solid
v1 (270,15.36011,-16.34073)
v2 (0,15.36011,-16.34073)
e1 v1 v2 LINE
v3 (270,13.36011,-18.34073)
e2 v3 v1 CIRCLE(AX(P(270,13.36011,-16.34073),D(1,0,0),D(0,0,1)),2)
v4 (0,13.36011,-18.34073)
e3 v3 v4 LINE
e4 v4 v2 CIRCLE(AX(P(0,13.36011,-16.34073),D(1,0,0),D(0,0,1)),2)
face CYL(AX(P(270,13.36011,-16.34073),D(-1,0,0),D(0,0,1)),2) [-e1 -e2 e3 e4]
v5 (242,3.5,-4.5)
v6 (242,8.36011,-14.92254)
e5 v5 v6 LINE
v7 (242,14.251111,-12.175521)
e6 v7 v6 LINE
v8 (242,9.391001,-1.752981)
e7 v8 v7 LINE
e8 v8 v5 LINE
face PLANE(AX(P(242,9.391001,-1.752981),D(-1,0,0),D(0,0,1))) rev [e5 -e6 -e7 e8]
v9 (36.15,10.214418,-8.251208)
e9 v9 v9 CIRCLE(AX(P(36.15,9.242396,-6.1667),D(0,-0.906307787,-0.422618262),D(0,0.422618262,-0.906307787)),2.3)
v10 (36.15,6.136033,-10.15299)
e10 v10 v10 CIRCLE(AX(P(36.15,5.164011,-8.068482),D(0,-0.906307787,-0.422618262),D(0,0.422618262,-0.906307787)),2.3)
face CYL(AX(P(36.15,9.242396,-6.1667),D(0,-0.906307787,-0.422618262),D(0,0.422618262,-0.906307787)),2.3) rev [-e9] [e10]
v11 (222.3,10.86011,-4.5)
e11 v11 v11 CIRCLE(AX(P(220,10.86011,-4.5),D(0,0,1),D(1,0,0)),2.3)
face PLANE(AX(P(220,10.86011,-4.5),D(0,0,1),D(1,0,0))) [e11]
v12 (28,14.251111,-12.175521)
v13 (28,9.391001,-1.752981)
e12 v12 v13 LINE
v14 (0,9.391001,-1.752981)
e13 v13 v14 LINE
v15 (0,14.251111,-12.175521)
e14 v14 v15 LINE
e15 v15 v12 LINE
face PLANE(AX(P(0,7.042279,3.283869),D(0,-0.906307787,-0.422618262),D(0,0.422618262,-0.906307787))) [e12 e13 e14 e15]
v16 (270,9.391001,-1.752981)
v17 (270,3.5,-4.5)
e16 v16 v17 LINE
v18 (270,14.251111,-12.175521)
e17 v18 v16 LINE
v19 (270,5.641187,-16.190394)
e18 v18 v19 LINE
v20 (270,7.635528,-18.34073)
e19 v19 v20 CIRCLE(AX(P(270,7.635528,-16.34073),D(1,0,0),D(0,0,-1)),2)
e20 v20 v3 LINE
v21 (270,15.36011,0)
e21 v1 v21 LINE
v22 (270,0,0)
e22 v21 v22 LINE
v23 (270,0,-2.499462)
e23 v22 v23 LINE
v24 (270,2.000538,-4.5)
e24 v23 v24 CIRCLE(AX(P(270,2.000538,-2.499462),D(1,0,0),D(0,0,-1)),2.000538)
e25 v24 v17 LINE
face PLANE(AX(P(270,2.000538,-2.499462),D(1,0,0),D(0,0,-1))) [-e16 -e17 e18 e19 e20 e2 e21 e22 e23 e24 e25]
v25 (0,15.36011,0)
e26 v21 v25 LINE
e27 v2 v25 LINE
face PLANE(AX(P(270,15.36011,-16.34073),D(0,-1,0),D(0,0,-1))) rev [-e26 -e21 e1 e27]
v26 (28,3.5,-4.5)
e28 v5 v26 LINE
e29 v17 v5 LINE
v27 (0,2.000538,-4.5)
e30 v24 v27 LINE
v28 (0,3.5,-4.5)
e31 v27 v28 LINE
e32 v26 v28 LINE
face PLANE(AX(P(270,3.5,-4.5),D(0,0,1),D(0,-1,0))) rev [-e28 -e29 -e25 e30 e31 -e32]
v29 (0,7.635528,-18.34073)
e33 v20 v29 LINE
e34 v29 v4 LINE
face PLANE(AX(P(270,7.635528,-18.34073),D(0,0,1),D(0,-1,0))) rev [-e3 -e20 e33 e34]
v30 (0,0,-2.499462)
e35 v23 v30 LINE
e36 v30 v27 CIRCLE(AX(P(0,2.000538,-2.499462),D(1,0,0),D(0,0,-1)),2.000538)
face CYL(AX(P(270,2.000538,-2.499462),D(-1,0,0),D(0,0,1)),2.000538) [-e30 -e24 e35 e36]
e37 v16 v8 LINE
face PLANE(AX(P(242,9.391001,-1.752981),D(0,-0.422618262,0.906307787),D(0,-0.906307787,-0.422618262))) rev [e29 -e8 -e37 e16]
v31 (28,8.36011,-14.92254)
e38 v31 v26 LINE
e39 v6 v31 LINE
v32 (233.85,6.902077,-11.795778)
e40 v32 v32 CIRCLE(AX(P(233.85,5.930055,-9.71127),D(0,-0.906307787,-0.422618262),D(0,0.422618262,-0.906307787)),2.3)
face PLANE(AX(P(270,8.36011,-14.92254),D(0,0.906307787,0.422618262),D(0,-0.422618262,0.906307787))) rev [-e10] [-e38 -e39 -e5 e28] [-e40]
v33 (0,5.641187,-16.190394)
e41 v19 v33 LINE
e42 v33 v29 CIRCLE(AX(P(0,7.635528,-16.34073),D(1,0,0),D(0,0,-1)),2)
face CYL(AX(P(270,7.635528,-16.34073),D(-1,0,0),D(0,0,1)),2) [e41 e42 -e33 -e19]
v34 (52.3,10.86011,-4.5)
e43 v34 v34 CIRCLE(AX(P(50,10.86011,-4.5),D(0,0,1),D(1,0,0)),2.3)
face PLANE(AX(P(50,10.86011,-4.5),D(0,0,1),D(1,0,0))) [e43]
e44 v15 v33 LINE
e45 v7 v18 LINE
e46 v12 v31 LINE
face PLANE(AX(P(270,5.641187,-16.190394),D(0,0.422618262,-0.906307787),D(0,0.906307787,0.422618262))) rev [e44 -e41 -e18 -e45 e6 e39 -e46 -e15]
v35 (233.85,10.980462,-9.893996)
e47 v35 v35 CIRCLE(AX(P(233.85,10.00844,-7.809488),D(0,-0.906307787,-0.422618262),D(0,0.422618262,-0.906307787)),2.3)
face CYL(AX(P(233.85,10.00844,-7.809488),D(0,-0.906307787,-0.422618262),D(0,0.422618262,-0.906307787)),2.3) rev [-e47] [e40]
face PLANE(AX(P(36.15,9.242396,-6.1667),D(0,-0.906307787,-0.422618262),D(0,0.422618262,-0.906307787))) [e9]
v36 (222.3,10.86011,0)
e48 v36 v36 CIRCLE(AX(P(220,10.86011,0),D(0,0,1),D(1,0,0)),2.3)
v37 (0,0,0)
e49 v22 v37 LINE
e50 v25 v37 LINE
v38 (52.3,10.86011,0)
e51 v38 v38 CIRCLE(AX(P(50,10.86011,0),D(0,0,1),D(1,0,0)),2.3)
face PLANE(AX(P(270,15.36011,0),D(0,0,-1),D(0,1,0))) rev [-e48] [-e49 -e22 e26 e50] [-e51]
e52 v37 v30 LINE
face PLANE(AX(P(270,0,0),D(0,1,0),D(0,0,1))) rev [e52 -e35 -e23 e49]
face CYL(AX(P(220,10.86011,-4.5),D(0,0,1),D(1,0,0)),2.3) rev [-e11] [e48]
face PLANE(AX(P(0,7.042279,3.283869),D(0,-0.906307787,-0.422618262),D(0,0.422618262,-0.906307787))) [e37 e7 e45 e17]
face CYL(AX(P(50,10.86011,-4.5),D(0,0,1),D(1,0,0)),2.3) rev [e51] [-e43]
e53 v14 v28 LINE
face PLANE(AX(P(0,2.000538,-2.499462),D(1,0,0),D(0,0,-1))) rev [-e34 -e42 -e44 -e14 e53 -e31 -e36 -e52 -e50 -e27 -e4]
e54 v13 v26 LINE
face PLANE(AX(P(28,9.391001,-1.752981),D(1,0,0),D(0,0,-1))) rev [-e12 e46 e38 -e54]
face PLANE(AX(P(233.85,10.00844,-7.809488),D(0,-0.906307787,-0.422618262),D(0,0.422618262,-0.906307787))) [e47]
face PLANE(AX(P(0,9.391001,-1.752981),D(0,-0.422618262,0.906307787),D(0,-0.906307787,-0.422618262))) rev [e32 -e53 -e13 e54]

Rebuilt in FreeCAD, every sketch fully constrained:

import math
import FreeCAD as App
import Part
import Sketcher
Q = App.Units.Quantity


def add_polygon(sketch, points):
    """Adds a closed chain of lines whose ends are joined by coincident constraints."""
    first, n = sketch.GeometryCount, len(points)
    for a, b in zip(points, points[1:] + points[:1]):
        sketch.addGeometry(Part.LineSegment(App.Vector(*a, 0), App.Vector(*b, 0)), False)
    for i in range(n):
        sketch.addConstraint(Sketcher.Constraint("Coincident", first + i, 2, first + (i + 1) % n, 1))

doc = App.newDocument("Part")
body = doc.addObject("PartDesign::Body", "Body")

sketch1 = doc.addObject("Sketcher::SketchObject", "Sketch")
body.addObject(sketch1)
sketch1.AttachmentSupport = (doc.YZ_Plane, [""])
sketch1.MapMode = "FlatFace"
sketch1.addGeometry(Part.LineSegment(App.Vector(0, 0, 0), App.Vector(0, -2.499462, 0)), False)
sketch1.addGeometry(Part.ArcOfCircle(Part.Circle(App.Vector(2.000538, -2.499462, 0), App.Vector(0, 0, 1), 2.000538), math.radians(180), math.radians(270)), False)
sketch1.addGeometry(Part.LineSegment(App.Vector(2.000538, -4.5, 0), App.Vector(3.5, -4.5, 0)), False)
sketch1.addGeometry(Part.LineSegment(App.Vector(3.5, -4.5, 0), App.Vector(8.36011, -14.92254, 0)), False)
sketch1.addGeometry(Part.LineSegment(App.Vector(8.36011, -14.92254, 0), App.Vector(5.641187, -16.190394, 0)), False)
sketch1.addGeometry(Part.ArcOfCircle(Part.Circle(App.Vector(7.635528, -16.34073, 0), App.Vector(0, 0, 1), 2), math.radians(175.689148), math.radians(270)), False)
sketch1.addGeometry(Part.LineSegment(App.Vector(7.635528, -18.34073, 0), App.Vector(13.36011, -18.34073, 0)), False)
sketch1.addGeometry(Part.ArcOfCircle(Part.Circle(App.Vector(13.36011, -16.34073, 0), App.Vector(0, 0, 1), 2), math.radians(-90), math.radians(0)), False)
sketch1.addGeometry(Part.LineSegment(App.Vector(15.36011, -16.34073, 0), App.Vector(15.36011, 0, 0)), False)
sketch1.addGeometry(Part.LineSegment(App.Vector(15.36011, 0, 0), App.Vector(0, 0, 0)), False)
sketch1.addConstraint(Sketcher.Constraint("Tangent", 0, 2, 1, 1))
sketch1.addConstraint(Sketcher.Constraint("Tangent", 1, 2, 2, 1))
sketch1.addConstraint(Sketcher.Constraint("Coincident", 2, 2, 3, 1))
sketch1.addConstraint(Sketcher.Constraint("Coincident", 3, 2, 4, 1))
sketch1.addConstraint(Sketcher.Constraint("Coincident", 4, 2, 5, 1))
sketch1.addConstraint(Sketcher.Constraint("Tangent", 5, 2, 6, 1))
sketch1.addConstraint(Sketcher.Constraint("Tangent", 6, 2, 7, 1))
sketch1.addConstraint(Sketcher.Constraint("Tangent", 7, 2, 8, 1))
sketch1.addConstraint(Sketcher.Constraint("Coincident", 8, 2, 9, 1))
sketch1.addConstraint(Sketcher.Constraint("Coincident", 9, 2, 0, 1))
sketch1.addConstraint(Sketcher.Constraint("Vertical", 0))
sketch1.addConstraint(Sketcher.Constraint("Horizontal", 2))
sketch1.addConstraint(Sketcher.Constraint("Horizontal", 6))
sketch1.addConstraint(Sketcher.Constraint("Vertical", 8))
sketch1.addConstraint(Sketcher.Constraint("Horizontal", 9))
sketch1.addConstraint(Sketcher.Constraint("Coincident", 9, 2, -1, 1))
sketch1.addConstraint(Sketcher.Constraint("Equal", 5, 7))
sketch1.addConstraint(Sketcher.Constraint("Perpendicular", 3, 4))
sketch1.addConstraint(Sketcher.Constraint("Radius", 5, 2.0))
sketch1.addConstraint(Sketcher.Constraint("Angle", 3, Q("-65 deg")))
sketch1.addConstraint(Sketcher.Constraint("Distance", 4, 3.0))
sketch1.addConstraint(Sketcher.Constraint("DistanceX", 3, 2, 7, 3, 5.0))
sketch1.addConstraint(Sketcher.Constraint("Distance", 3, 11.5))
sketch1.addConstraint(Sketcher.Constraint("DistanceY", 1, 2, -1, 1, 4.5))
sketch1.addConstraint(Sketcher.Constraint("DistanceX", -1, 1, 2, 2, 3.5))
sketch1.addConstraint(Sketcher.Constraint("Radius", 1, 2.000538))
sketch1.addConstraint(Sketcher.Constraint("DistanceX", 6, 1, 6, 2, 5.724582))
pad1 = doc.addObject("PartDesign::Pad", "Pad")
body.addObject(pad1)
pad1.Profile = sketch1
pad1.Length = 270

sketch2 = doc.addObject("Sketcher::SketchObject", "Sketch001")
body.addObject(sketch2)
sketch2.Placement = App.Placement(App.Vector(0, 1.151278, 0.53685), App.Rotation(App.Vector(1, 0, 0), App.Vector(0, -0.422618262, 0.906307787), App.Vector(0, -0.906307787, -0.422618262), "ZXY"))
sketch2.addGeometry(Part.Circle(App.Vector(36.15, -9.494933, 0), App.Vector(0, 0, 1), 2.3), False)
sketch2.addGeometry(Part.Circle(App.Vector(233.85, -11.307549, 0), App.Vector(0, 0, 1), 2.3), False)
sketch2.addConstraint(Sketcher.Constraint("Equal", 0, 1))
sketch2.addConstraint(Sketcher.Constraint("Diameter", 0, 4.6))
sketch2.addConstraint(Sketcher.Constraint("DistanceX", 0, 3, 1, 3, 197.7))
sketch2.addConstraint(Sketcher.Constraint("DistanceX", -1, 1, 0, 3, 36.15))
sketch2.addConstraint(Sketcher.Constraint("DistanceY", 1, 3, -1, 1, 11.307549))
sketch2.addConstraint(Sketcher.Constraint("DistanceY", 0, 3, -1, 1, 9.494933))
pocket1 = doc.addObject("PartDesign::Pocket", "Pocket")
body.addObject(pocket1)
pocket1.Profile = sketch2
pocket1.Length = 4.5

sketch3 = doc.addObject("Sketcher::SketchObject", "Sketch002")
body.addObject(sketch3)
sketch3.AttachmentSupport = (doc.XY_Plane, [""])
sketch3.MapMode = "FlatFace"
sketch3.addGeometry(Part.Circle(App.Vector(50, 10.86011, 0), App.Vector(0, 0, 1), 2.3), False)
sketch3.addGeometry(Part.Circle(App.Vector(220, 10.86011, 0), App.Vector(0, 0, 1), 2.3), False)
sketch3.addConstraint(Sketcher.Constraint("Equal", 0, 1))
sketch3.addConstraint(Sketcher.Constraint("Horizontal", 0, 3, 1, 3))
sketch3.addConstraint(Sketcher.Constraint("Diameter", 0, 4.6))
sketch3.addConstraint(Sketcher.Constraint("DistanceX", -1, 1, 0, 3, 50.0))
sketch3.addConstraint(Sketcher.Constraint("DistanceX", -1, 1, 1, 3, 220.0))
sketch3.addConstraint(Sketcher.Constraint("DistanceY", -1, 1, 0, 3, 10.86011))
pocket2 = doc.addObject("PartDesign::Pocket", "Pocket001")
body.addObject(pocket2)
pocket2.Profile = sketch3
pocket2.Length = 4.5

sketch4 = doc.addObject("Sketcher::SketchObject", "Sketch003")
body.addObject(sketch4)
sketch4.Placement = App.Placement(App.Vector(0, 1.151278, 0.53685), App.Rotation(App.Vector(1, 0, 0), App.Vector(0, -0.422618262, 0.906307787), App.Vector(0, -0.906307787, -0.422618262), "ZXY"))
add_polygon(sketch4, [(242, -5.557549), (242, -17.057549), (270, -17.057549), (270, -5.557549)])
add_polygon(sketch4, [(0, -5.557549), (0, -17.057549), (28, -17.057549), (28, -5.557549)])
sketch4.addConstraint(Sketcher.Constraint("Vertical", 0))
sketch4.addConstraint(Sketcher.Constraint("Horizontal", 1))
sketch4.addConstraint(Sketcher.Constraint("Vertical", 2))
sketch4.addConstraint(Sketcher.Constraint("Horizontal", 3))
sketch4.addConstraint(Sketcher.Constraint("Vertical", 4))
sketch4.addConstraint(Sketcher.Constraint("Horizontal", 5))
sketch4.addConstraint(Sketcher.Constraint("Vertical", 6))
sketch4.addConstraint(Sketcher.Constraint("Horizontal", 7))
sketch4.addConstraint(Sketcher.Constraint("PointOnObject", 4, 2, -2))
sketch4.addConstraint(Sketcher.Constraint("Horizontal", 1, 2, 4, 2))
sketch4.addConstraint(Sketcher.Constraint("Horizontal", 3, 2, 6, 2))
sketch4.addConstraint(Sketcher.Constraint("Equal", 3, 5))
sketch4.addConstraint(Sketcher.Constraint("DistanceX", 1, 1, 1, 2, 28.0))
sketch4.addConstraint(Sketcher.Constraint("DistanceY", 0, 2, 0, 1, 11.5))
sketch4.addConstraint(Sketcher.Constraint("DistanceX", -1, 1, 0, 2, 242.0))
sketch4.addConstraint(Sketcher.Constraint("DistanceY", 0, 2, -1, 1, 17.057549))
pocket3 = doc.addObject("PartDesign::Pocket", "Pocket002")
body.addObject(pocket3)
pocket3.Profile = sketch4
pocket3.Length = 6.5

doc.recompute()
